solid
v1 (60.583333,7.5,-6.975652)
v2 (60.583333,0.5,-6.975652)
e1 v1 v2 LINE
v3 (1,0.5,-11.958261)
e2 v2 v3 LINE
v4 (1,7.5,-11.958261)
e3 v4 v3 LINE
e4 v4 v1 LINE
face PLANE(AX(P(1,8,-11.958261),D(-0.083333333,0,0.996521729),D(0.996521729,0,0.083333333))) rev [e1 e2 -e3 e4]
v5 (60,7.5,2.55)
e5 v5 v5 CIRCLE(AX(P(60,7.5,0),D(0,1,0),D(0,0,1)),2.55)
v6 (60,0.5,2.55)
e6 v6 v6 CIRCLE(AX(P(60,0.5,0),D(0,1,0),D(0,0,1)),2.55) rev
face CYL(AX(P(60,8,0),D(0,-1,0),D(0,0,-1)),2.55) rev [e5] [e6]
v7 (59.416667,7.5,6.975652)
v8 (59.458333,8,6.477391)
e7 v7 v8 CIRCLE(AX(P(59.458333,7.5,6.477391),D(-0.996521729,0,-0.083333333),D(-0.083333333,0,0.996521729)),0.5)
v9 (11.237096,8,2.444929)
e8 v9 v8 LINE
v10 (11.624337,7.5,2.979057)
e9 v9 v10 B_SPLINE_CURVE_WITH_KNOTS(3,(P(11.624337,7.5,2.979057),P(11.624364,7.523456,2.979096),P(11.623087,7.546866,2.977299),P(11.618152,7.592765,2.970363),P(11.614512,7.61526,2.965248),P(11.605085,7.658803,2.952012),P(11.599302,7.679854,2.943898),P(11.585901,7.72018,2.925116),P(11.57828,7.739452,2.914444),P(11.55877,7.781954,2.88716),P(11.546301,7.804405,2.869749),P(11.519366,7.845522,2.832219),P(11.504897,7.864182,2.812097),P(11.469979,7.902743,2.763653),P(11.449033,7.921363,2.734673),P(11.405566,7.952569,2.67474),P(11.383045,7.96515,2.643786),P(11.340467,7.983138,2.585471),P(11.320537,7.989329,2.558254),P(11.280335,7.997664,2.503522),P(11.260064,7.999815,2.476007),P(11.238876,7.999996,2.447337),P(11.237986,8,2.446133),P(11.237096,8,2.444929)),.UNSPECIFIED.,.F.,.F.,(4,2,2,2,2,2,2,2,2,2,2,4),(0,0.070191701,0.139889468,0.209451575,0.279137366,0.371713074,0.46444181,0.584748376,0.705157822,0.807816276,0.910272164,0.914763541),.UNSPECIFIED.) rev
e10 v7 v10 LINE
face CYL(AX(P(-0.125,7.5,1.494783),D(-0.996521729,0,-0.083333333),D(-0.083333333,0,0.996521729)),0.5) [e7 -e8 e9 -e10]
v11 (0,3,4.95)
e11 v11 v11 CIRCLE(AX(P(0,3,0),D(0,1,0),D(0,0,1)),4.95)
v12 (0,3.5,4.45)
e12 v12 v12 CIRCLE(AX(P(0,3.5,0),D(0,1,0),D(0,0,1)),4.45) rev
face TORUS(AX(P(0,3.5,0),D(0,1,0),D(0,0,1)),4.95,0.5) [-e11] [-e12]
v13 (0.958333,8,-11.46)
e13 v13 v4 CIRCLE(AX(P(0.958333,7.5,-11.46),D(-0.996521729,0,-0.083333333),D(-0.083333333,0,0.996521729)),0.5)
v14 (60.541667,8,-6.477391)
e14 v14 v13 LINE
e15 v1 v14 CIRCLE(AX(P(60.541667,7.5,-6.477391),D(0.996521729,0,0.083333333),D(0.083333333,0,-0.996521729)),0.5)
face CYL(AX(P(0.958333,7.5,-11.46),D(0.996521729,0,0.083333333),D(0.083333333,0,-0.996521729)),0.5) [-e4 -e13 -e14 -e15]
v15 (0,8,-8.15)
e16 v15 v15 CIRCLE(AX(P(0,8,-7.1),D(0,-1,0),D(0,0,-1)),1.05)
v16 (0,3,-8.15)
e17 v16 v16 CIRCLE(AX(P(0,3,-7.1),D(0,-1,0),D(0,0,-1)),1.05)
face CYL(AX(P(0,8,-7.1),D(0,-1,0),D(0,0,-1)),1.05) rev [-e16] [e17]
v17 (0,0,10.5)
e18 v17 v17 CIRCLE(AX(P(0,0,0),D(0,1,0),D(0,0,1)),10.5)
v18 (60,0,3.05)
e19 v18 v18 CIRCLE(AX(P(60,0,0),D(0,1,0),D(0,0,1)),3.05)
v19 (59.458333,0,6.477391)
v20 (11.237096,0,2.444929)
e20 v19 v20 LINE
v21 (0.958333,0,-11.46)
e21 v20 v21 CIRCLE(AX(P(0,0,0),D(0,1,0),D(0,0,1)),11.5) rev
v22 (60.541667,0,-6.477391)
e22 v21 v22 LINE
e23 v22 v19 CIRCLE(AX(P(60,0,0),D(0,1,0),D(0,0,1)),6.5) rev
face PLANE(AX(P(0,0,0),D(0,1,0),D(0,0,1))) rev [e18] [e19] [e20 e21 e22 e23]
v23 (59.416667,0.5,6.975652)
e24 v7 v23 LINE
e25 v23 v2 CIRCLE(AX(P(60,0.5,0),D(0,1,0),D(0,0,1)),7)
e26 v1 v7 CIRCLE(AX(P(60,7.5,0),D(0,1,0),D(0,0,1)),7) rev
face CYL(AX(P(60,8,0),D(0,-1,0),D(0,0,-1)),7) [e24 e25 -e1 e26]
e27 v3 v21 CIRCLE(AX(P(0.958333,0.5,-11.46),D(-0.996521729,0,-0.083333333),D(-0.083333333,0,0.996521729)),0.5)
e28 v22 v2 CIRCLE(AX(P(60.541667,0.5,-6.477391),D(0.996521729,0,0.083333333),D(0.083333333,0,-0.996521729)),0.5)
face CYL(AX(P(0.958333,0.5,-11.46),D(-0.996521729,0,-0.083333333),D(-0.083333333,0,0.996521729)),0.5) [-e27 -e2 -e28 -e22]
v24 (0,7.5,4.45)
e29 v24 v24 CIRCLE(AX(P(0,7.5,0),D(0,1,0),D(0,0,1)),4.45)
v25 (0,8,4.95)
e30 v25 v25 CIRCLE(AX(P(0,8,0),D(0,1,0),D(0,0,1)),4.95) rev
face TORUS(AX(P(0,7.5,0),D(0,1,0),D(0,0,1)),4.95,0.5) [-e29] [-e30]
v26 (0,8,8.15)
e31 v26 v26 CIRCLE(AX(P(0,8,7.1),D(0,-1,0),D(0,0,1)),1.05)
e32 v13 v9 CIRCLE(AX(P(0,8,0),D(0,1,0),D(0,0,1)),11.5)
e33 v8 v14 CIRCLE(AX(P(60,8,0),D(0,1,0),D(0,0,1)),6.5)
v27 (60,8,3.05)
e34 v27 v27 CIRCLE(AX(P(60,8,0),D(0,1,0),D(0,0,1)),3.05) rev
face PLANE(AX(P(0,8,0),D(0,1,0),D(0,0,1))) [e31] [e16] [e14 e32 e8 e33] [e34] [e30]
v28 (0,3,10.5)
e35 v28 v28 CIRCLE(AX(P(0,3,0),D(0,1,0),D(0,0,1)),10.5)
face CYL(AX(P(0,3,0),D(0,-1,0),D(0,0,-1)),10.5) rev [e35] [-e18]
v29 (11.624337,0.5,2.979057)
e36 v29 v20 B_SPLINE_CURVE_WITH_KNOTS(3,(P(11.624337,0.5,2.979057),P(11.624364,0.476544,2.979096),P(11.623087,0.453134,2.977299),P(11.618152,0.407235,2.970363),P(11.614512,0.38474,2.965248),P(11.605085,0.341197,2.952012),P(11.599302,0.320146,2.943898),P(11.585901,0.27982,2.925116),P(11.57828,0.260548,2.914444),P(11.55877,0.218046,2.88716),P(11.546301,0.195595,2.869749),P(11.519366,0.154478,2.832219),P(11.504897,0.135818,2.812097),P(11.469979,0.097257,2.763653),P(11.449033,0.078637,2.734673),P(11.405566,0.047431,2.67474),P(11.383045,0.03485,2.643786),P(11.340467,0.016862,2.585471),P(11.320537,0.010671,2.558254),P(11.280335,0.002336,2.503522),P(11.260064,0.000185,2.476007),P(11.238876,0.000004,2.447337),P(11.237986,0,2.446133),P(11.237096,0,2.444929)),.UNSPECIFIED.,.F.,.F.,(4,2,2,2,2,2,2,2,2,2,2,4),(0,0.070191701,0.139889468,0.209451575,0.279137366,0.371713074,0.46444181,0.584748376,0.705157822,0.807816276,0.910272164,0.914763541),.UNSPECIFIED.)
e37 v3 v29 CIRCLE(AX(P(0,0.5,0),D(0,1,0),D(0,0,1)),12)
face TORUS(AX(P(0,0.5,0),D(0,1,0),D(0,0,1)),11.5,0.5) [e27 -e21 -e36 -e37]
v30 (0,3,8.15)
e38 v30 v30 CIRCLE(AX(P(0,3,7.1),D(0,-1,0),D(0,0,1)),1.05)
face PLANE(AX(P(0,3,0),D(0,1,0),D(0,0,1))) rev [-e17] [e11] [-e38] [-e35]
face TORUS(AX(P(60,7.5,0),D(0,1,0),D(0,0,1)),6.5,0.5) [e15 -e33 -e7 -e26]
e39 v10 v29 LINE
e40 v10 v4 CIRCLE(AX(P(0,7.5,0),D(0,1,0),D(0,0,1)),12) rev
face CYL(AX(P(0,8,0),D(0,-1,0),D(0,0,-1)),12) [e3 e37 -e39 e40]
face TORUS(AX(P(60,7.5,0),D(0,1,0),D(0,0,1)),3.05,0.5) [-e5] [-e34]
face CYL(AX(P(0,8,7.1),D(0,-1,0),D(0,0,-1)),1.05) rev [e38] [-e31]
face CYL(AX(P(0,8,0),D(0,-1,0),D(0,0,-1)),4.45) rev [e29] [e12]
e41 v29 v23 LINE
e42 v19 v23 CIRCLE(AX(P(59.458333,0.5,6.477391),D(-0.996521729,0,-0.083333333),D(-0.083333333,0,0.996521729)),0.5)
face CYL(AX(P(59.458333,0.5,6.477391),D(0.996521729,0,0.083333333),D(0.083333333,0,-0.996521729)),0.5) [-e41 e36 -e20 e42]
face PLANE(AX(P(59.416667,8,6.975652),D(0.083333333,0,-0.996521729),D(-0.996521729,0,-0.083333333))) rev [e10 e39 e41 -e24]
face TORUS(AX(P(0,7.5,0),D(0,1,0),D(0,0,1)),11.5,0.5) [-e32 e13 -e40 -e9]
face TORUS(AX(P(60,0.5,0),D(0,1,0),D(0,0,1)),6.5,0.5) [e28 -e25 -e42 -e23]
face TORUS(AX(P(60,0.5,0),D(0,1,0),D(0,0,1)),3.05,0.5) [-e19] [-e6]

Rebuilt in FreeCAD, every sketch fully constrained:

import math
import FreeCAD as App
import Part
import Sketcher
Q = App.Units.Quantity


def edges_at(feature, points):
    """Names of the edges that pass closest to the given points."""
    edges = feature.Shape.Edges
    near = lambda p: min(range(len(edges)), key=lambda i: edges[i].distToShape(Part.Vertex(*p))[0])
    return sorted({f"Edge{near(p) + 1}" for p in points})

doc = App.newDocument("Part")
body = doc.addObject("PartDesign::Body", "Body")

# Sketch on XZ plane
sketch1 = body.newObject("Sketcher::SketchObject", "Sketch")
sketch1.AttachmentSupport = (doc.getObject("XZ_Plane"), [""])
sketch1.MapMode = "FlatFace"
sketch1.addGeometry(Part.LineSegment(App.Vector(60.583333, -6.975652, 0), App.Vector(1, -11.958261, 0)), False)
sketch1.addGeometry(Part.ArcOfCircle(Part.Circle(App.Vector(0, 0, 0), App.Vector(0, 0, 1), 12), math.radians(14.37426), math.radians(274.780192)), False)
sketch1.addGeometry(Part.LineSegment(App.Vector(11.624337, 2.979057, 0), App.Vector(59.416667, 6.975652, 0)), False)
sketch1.addGeometry(Part.ArcOfCircle(Part.Circle(App.Vector(60, 0, 0), App.Vector(0, 0, 1), 7), math.radians(-85.219808), math.radians(94.780192)), False)
sketch1.addConstraint(Sketcher.Constraint("Tangent", 0, 2, 1, 2))
sketch1.addConstraint(Sketcher.Constraint("Coincident", 1, 1, 2, 1))
sketch1.addConstraint(Sketcher.Constraint("Tangent", 2, 2, 3, 2))
sketch1.addConstraint(Sketcher.Constraint("Tangent", 3, 1, 0, 1))
sketch1.addConstraint(Sketcher.Constraint("Coincident", 1, 3, -1, 1))
sketch1.addConstraint(Sketcher.Constraint("PointOnObject", 3, 3, -1))
sketch1.addConstraint(Sketcher.Constraint("Parallel", 0, 2))
sketch1.addConstraint(Sketcher.Constraint("Radius", 1, Q("12 mm")))
sketch1.addConstraint(Sketcher.Constraint("Radius", 3, Q("7 mm")))
sketch1.addConstraint(Sketcher.Constraint("DistanceX", -1, 1, 3, 3, Q("60 mm")))
pad1 = body.newObject("PartDesign::Pad", "Pad")
pad1.Profile = sketch1
pad1.Length = 8
pad1.Reversed = True

# Sketch on XZ plane
sketch2 = body.newObject("Sketcher::SketchObject", "Sketch001")
sketch2.AttachmentSupport = (doc.getObject("XZ_Plane"), [""])
sketch2.MapMode = "FlatFace"
sketch2.addGeometry(Part.Circle(App.Vector(0, 0, 0), App.Vector(0, 0, 1), 10.5), False)
sketch2.addConstraint(Sketcher.Constraint("Coincident", 0, 3, -1, 1))
sketch2.addConstraint(Sketcher.Constraint("Diameter", 0, Q("21 mm")))
pocket1 = body.newObject("PartDesign::Pocket", "Pocket")
pocket1.Profile = sketch2
pocket1.Length = 3

# Sketch on XZ plane
sketch3 = body.newObject("Sketcher::SketchObject", "Sketch002")
sketch3.AttachmentSupport = (doc.getObject("XZ_Plane"), [""])
sketch3.MapMode = "FlatFace"
sketch3.AttachmentOffset = App.Placement(App.Vector(0, 0, -3), App.Rotation())
sketch3.addGeometry(Part.Circle(App.Vector(0, 0, 0), App.Vector(0, 0, 1), 4.45), False)
sketch3.addGeometry(Part.Circle(App.Vector(0, -7.1, 0), App.Vector(0, 0, 1), 1.05), False)
sketch3.addGeometry(Part.Circle(App.Vector(0, 7.1, 0), App.Vector(0, 0, 1), 1.05), False)
sketch3.addConstraint(Sketcher.Constraint("Coincident", 0, 3, -1, 1))
sketch3.addConstraint(Sketcher.Constraint("Equal", 1, 2))
sketch3.addConstraint(Sketcher.Constraint("Symmetric", 1, 3, 2, 3, -1, 1))
sketch3.addConstraint(Sketcher.Constraint("PointOnObject", 1, 3, -2))
sketch3.addConstraint(Sketcher.Constraint("Diameter", 0, Q("8.9 mm")))
sketch3.addConstraint(Sketcher.Constraint("Diameter", 1, Q("2.1 mm")))
sketch3.addConstraint(Sketcher.Constraint("DistanceY", 1, 3, -1, 1, Q("7.1 mm")))
pocket2 = body.newObject("PartDesign::Pocket", "Pocket001")
pocket2.Profile = sketch3
pocket2.Type = "ThroughAll"

# Sketch on XZ plane
sketch4 = body.newObject("Sketcher::SketchObject", "Sketch003")
sketch4.AttachmentSupport = (doc.getObject("XZ_Plane"), [""])
sketch4.MapMode = "FlatFace"
sketch4.addGeometry(Part.Circle(App.Vector(60, 0, 0), App.Vector(0, 0, 1), 2.55), False)
sketch4.addConstraint(Sketcher.Constraint("PointOnObject", 0, 3, -1))
sketch4.addConstraint(Sketcher.Constraint("Diameter", 0, Q("5.1 mm")))
sketch4.addConstraint(Sketcher.Constraint("DistanceX", -1, 1, 0, 3, Q("60 mm")))
pocket3 = body.newObject("PartDesign::Pocket", "Pocket002")
pocket3.Profile = sketch4
pocket3.Type = "ThroughAll"
doc.recompute()

fillet = body.newObject("PartDesign::Fillet", "Fillet")
fillet.Base = (pocket3, edges_at(pocket3, [
    (66.976, 8, 0.583),
    (30.792, 8, -9.467),
    (-9.779, 8, 6.955),
    (30.792, 0, -9.467),
    (66.976, 0, 0.583),
    (35.521, 0, 4.977),
    (-9.779, 0, 6.955),
    (35.521, 8, 4.977),
]))
fillet.Radius = 0.5
doc.recompute()

fillet2 = body.newObject("PartDesign::Fillet", "Fillet001")
fillet2.Base = (fillet, edges_at(fillet, [
    (0, 8, 4.45),
    (0, 3, 4.45),
    (60, 8, 2.55),
    (60, 0, 2.55),
]))
fillet2.Radius = 0.5

doc.recompute()
